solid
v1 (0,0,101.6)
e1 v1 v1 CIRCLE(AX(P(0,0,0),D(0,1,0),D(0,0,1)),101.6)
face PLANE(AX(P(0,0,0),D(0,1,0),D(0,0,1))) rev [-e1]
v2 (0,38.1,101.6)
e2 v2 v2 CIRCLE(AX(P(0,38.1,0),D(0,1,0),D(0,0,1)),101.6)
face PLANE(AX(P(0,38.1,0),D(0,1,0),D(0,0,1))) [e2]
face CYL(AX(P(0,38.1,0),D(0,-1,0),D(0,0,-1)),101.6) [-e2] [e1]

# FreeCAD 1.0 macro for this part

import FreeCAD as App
import Part
import Sketcher
Q = App.Units.Quantity

doc = App.newDocument("Part")
params = doc.addObject("Spreadsheet::Sheet", "Params")
for row, (alias, value) in enumerate([
    ("sketch1_diameter", "8 in"),
    ("pad1_length", "1.5 in"),
], start=1):
    params.set(f"A{row}", alias)
    params.set(f"B{row}", "=" + value)
    params.setAlias(f"B{row}", alias)

body = doc.addObject("PartDesign::Body", "Body")

# Sketch on XZ plane
sketch1 = doc.addObject("Sketcher::SketchObject", "Sketch")
body.addObject(sketch1)
sketch1.AttachmentSupport = (doc.XZ_Plane, [""])
sketch1.MapMode = "FlatFace"
sketch1.addGeometry(Part.Circle(App.Vector(0, 0, 0), App.Vector(0, 0, 1), 101.6), False)
sketch1.addConstraint([
    Sketcher.Constraint("Coincident", 0, 3, -1, 1),
    Sketcher.Constraint("Diameter", 0, Q("8 in")),
])
sketch1.setExpression("Constraints[1]", "Params.sketch1_diameter")
pad1 = doc.addObject("PartDesign::Pad", "Pad")
body.addObject(pad1)
pad1.Profile = sketch1
pad1.setExpression("Length", "Params.pad1_length")
pad1.Reversed = True

doc.recompute()
